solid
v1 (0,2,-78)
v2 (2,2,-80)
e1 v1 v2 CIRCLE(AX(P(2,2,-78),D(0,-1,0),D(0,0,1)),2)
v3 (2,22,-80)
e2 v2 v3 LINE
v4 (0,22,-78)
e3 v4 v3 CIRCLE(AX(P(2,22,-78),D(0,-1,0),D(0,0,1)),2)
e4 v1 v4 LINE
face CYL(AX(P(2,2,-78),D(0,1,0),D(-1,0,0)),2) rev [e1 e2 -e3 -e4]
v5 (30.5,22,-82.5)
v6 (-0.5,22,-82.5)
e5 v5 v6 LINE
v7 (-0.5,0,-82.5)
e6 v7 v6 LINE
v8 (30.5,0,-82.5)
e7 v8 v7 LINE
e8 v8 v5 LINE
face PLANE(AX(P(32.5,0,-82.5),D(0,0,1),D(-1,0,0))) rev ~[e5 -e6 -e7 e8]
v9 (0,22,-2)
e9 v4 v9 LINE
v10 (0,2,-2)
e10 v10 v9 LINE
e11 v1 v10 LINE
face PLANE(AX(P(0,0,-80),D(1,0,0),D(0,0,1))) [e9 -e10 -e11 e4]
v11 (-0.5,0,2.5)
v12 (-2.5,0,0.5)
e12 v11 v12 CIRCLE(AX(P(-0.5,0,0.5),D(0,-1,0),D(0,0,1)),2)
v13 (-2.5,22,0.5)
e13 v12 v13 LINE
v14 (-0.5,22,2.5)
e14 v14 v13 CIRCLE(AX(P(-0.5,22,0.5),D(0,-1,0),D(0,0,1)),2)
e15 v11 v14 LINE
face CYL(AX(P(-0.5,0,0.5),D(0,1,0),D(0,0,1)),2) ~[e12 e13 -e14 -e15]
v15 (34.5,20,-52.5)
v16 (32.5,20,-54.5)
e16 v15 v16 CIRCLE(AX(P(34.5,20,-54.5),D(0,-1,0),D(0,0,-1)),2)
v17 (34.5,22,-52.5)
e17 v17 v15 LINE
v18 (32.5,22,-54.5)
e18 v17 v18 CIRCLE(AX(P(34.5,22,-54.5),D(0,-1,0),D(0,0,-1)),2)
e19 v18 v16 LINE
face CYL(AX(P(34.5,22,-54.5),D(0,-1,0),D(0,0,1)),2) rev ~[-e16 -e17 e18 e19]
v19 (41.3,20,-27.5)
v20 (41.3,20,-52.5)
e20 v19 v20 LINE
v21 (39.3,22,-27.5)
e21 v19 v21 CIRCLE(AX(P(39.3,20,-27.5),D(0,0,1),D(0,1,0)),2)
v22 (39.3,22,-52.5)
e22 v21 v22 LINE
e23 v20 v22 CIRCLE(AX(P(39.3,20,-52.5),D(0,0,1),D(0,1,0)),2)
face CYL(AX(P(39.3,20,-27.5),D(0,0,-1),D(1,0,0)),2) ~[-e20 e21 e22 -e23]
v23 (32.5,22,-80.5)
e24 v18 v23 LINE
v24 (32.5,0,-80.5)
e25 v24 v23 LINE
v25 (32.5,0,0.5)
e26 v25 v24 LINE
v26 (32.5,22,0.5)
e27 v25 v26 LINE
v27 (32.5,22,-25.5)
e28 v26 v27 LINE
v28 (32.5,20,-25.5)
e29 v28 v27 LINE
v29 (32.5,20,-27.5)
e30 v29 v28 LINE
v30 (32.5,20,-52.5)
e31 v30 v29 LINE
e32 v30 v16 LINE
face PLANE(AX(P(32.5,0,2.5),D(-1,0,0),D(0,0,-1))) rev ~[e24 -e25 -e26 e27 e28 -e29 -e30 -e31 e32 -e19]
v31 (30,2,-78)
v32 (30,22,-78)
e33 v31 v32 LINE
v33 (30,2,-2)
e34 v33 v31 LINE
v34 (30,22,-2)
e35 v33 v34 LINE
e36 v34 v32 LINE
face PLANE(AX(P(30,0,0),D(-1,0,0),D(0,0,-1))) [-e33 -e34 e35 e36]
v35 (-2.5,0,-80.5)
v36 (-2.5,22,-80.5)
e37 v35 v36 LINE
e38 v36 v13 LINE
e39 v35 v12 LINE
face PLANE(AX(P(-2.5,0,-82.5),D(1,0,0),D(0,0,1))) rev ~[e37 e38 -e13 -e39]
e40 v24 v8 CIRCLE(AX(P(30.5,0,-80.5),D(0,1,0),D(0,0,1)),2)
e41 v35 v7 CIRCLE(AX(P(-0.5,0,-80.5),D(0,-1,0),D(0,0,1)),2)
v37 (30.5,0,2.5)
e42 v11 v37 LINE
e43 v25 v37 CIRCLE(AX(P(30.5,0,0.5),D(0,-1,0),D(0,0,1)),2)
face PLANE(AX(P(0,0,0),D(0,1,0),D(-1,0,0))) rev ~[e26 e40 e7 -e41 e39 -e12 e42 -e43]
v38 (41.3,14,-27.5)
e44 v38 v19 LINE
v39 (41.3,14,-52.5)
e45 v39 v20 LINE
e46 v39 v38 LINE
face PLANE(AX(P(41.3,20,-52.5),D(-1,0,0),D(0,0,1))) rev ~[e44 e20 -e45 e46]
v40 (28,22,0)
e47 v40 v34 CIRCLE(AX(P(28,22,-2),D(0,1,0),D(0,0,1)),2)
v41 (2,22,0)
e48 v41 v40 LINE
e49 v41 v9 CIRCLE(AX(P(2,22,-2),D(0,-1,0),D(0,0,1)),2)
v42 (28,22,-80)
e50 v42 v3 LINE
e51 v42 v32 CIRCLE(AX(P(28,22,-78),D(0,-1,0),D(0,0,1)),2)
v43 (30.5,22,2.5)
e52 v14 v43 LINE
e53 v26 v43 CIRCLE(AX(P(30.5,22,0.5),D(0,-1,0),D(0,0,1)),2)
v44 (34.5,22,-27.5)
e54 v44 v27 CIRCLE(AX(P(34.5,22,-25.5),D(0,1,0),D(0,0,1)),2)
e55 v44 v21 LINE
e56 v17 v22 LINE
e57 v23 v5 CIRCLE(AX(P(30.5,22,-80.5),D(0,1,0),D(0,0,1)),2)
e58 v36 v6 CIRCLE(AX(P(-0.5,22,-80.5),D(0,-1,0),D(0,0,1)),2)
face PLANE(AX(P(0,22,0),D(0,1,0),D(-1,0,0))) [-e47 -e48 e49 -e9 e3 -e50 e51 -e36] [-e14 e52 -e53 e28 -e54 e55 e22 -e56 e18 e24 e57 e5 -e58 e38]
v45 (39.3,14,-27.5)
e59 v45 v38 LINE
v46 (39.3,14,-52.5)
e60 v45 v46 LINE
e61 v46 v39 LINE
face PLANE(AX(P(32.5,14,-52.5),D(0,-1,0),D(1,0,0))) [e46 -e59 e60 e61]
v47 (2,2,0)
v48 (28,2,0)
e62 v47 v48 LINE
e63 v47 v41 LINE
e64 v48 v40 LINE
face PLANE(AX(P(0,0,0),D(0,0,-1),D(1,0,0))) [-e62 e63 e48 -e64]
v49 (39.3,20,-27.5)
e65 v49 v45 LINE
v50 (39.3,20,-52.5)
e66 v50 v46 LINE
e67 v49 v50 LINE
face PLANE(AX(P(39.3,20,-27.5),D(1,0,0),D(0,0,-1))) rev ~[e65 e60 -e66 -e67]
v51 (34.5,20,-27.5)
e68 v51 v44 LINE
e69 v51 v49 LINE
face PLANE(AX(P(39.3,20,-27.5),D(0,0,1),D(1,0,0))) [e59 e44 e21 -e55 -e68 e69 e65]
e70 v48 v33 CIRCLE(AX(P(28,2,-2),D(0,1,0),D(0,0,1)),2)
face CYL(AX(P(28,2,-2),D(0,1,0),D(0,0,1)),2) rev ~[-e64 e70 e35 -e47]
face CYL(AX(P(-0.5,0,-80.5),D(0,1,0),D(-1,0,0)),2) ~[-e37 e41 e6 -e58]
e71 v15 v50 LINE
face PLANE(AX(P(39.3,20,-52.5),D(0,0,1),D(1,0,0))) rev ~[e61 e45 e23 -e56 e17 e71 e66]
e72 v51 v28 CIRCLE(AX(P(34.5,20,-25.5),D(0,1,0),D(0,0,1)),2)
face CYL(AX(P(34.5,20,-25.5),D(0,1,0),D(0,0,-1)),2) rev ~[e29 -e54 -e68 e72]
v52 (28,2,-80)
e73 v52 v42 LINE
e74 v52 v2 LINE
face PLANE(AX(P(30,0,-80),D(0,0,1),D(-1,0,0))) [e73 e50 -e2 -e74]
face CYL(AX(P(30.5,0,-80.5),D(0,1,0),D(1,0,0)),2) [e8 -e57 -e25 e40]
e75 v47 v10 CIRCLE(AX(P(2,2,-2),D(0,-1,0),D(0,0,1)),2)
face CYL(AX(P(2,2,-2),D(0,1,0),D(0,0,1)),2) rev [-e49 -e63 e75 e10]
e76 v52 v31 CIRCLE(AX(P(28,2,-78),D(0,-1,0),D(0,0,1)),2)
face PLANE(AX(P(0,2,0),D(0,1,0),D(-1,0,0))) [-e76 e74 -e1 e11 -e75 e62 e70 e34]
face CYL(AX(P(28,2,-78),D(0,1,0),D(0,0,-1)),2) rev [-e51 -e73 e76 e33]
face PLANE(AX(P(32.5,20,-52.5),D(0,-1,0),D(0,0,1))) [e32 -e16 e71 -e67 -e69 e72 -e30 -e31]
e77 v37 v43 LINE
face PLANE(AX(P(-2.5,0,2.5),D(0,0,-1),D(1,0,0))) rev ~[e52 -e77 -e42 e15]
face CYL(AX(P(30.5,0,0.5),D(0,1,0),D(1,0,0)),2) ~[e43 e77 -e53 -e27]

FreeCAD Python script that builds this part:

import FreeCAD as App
import Part
import Sketcher


def edges_at(feature, points):
    """Names of the edges that pass closest to the given points."""
    edges = feature.Shape.Edges
    near = lambda p: min(range(len(edges)), key=lambda i: edges[i].distToShape(Part.Vertex(*p))[0])
    return sorted({f"Edge{near(p) + 1}" for p in points})

doc = App.newDocument("Part")
body = doc.addObject("PartDesign::Body", "Body")

sketch1 = body.newObject("Sketcher::SketchObject", "Sketch")
sketch1.AttachmentSupport = (doc.getObject("XZ_Plane"), [""])
sketch1.MapMode = "FlatFace"
sketch1.addGeometry(Part.LineSegment(App.Vector(0, -80, 0), App.Vector(0, 0, 0)), False)
sketch1.addGeometry(Part.LineSegment(App.Vector(0, 0, 0), App.Vector(30, 0, 0)), False)
sketch1.addGeometry(Part.LineSegment(App.Vector(30, 0, 0), App.Vector(30, -80, 0)), False)
sketch1.addGeometry(Part.LineSegment(App.Vector(30, -80, 0), App.Vector(0, -80, 0)), False)
sketch1.addConstraint(Sketcher.Constraint("Coincident", 0, 2, 1, 1))
sketch1.addConstraint(Sketcher.Constraint("Coincident", 1, 2, 2, 1))
sketch1.addConstraint(Sketcher.Constraint("Coincident", 2, 2, 3, 1))
sketch1.addConstraint(Sketcher.Constraint("Coincident", 3, 2, 0, 1))
sketch1.addConstraint(Sketcher.Constraint("Vertical", 0))
sketch1.addConstraint(Sketcher.Constraint("Horizontal", 1))
sketch1.addConstraint(Sketcher.Constraint("Vertical", 2))
sketch1.addConstraint(Sketcher.Constraint("Horizontal", 3))
sketch1.addConstraint(Sketcher.Constraint("Coincident", 0, 2, -1, 1))
sketch1.addConstraint(Sketcher.Constraint("DistanceX", 1, 1, 1, 2, 30.0))
sketch1.addConstraint(Sketcher.Constraint("DistanceY", 0, 1, 0, 2, 80.0))
pad1 = body.newObject("PartDesign::Pad", "Pad")
pad1.Profile = sketch1
pad1.Length = 2
pad1.Reversed = True

sketch2 = body.newObject("Sketcher::SketchObject", "Sketch001")
sketch2.AttachmentSupport = (doc.getObject("XZ_Plane"), [""])
sketch2.MapMode = "FlatFace"
sketch2.addGeometry(Part.LineSegment(App.Vector(-2.5, -82.5, 0), App.Vector(-2.5, 2.5, 0)), False)
sketch2.addGeometry(Part.LineSegment(App.Vector(-2.5, 2.5, 0), App.Vector(32.5, 2.5, 0)), False)
sketch2.addGeometry(Part.LineSegment(App.Vector(32.5, 2.5, 0), App.Vector(32.5, -82.5, 0)), False)
sketch2.addGeometry(Part.LineSegment(App.Vector(32.5, -82.5, 0), App.Vector(-2.5, -82.5, 0)), False)
sketch2.addGeometry(Part.LineSegment(App.Vector(30, 0, 0), App.Vector(0, 0, 0)), False)
sketch2.addGeometry(Part.LineSegment(App.Vector(0, 0, 0), App.Vector(0, -80, 0)), False)
sketch2.addGeometry(Part.LineSegment(App.Vector(0, -80, 0), App.Vector(30, -80, 0)), False)
sketch2.addGeometry(Part.LineSegment(App.Vector(30, -80, 0), App.Vector(30, 0, 0)), False)
sketch2.addConstraint(Sketcher.Constraint("Coincident", 0, 2, 1, 1))
sketch2.addConstraint(Sketcher.Constraint("Coincident", 1, 2, 2, 1))
sketch2.addConstraint(Sketcher.Constraint("Coincident", 2, 2, 3, 1))
sketch2.addConstraint(Sketcher.Constraint("Coincident", 3, 2, 0, 1))
sketch2.addConstraint(Sketcher.Constraint("Coincident", 4, 2, 5, 1))
sketch2.addConstraint(Sketcher.Constraint("Coincident", 5, 2, 6, 1))
sketch2.addConstraint(Sketcher.Constraint("Coincident", 6, 2, 7, 1))
sketch2.addConstraint(Sketcher.Constraint("Coincident", 7, 2, 4, 1))
sketch2.addConstraint(Sketcher.Constraint("Vertical", 0))
sketch2.addConstraint(Sketcher.Constraint("Horizontal", 1))
sketch2.addConstraint(Sketcher.Constraint("Vertical", 2))
sketch2.addConstraint(Sketcher.Constraint("Horizontal", 3))
sketch2.addConstraint(Sketcher.Constraint("Horizontal", 4))
sketch2.addConstraint(Sketcher.Constraint("Vertical", 5))
sketch2.addConstraint(Sketcher.Constraint("Horizontal", 6))
sketch2.addConstraint(Sketcher.Constraint("Vertical", 7))
sketch2.addConstraint(Sketcher.Constraint("Coincident", 4, 2, -1, 1))
sketch2.addConstraint(Sketcher.Constraint("DistanceX", 4, 2, 4, 1, 30.0))
sketch2.addConstraint(Sketcher.Constraint("DistanceY", 5, 2, 5, 1, 80.0))
sketch2.addConstraint(Sketcher.Constraint("DistanceX", 0, 2, -1, 1, 2.5))
sketch2.addConstraint(Sketcher.Constraint("DistanceY", -1, 1, 0, 2, 2.5))
sketch2.addConstraint(Sketcher.Constraint("DistanceY", 3, 2, 5, 2, 2.5))
sketch2.addConstraint(Sketcher.Constraint("DistanceX", 6, 2, 2, 2, 2.5))
pad2 = body.newObject("PartDesign::Pad", "Pad001")
pad2.Profile = sketch2
pad2.Length = 22
pad2.Reversed = True

sketch3 = body.newObject("Sketcher::SketchObject", "Sketch002")
sketch3.AttachmentSupport = (doc.getObject("YZ_Plane"), [""])
sketch3.MapMode = "FlatFace"
sketch3.AttachmentOffset = App.Placement(App.Vector(0, 0, 32.5), App.Rotation())
sketch3.addGeometry(Part.LineSegment(App.Vector(22, -52.5, 0), App.Vector(22, -27.5, 0)), False)
sketch3.addGeometry(Part.LineSegment(App.Vector(22, -27.5, 0), App.Vector(20, -27.5, 0)), False)
sketch3.addGeometry(Part.LineSegment(App.Vector(20, -27.5, 0), App.Vector(20, -52.5, 0)), False)
sketch3.addGeometry(Part.LineSegment(App.Vector(20, -52.5, 0), App.Vector(22, -52.5, 0)), False)
sketch3.addConstraint(Sketcher.Constraint("Coincident", 0, 2, 1, 1))
sketch3.addConstraint(Sketcher.Constraint("Coincident", 1, 2, 2, 1))
sketch3.addConstraint(Sketcher.Constraint("Coincident", 2, 2, 3, 1))
sketch3.addConstraint(Sketcher.Constraint("Coincident", 3, 2, 0, 1))
sketch3.addConstraint(Sketcher.Constraint("Vertical", 0))
sketch3.addConstraint(Sketcher.Constraint("Horizontal", 1))
sketch3.addConstraint(Sketcher.Constraint("Vertical", 2))
sketch3.addConstraint(Sketcher.Constraint("Horizontal", 3))
sketch3.addConstraint(Sketcher.Constraint("DistanceX", 1, 2, 1, 1, 2.0))
sketch3.addConstraint(Sketcher.Constraint("DistanceY", 0, 1, 0, 2, 25.0))
sketch3.addConstraint(Sketcher.Constraint("DistanceX", -1, 1, 0, 2, 22.0))
sketch3.addConstraint(Sketcher.Constraint("DistanceY", 0, 2, -1, 1, 27.5))
pad3 = body.newObject("PartDesign::Pad", "Pad002")
pad3.Profile = sketch3
pad3.Length = 8.8

sketch4 = body.newObject("Sketcher::SketchObject", "Sketch003")
sketch4.AttachmentSupport = (doc.getObject("XZ_Plane"), [""])
sketch4.MapMode = "FlatFace"
sketch4.AttachmentOffset = App.Placement(App.Vector(0, 0, -20), App.Rotation())
sketch4.addGeometry(Part.LineSegment(App.Vector(41.3, -27.5, 0), App.Vector(39.3, -27.5, 0)), False)
sketch4.addGeometry(Part.LineSegment(App.Vector(39.3, -27.5, 0), App.Vector(39.3, -52.5, 0)), False)
sketch4.addGeometry(Part.LineSegment(App.Vector(39.3, -52.5, 0), App.Vector(41.3, -52.5, 0)), False)
sketch4.addGeometry(Part.LineSegment(App.Vector(41.3, -52.5, 0), App.Vector(41.3, -27.5, 0)), False)
sketch4.addConstraint(Sketcher.Constraint("Coincident", 0, 2, 1, 1))
sketch4.addConstraint(Sketcher.Constraint("Coincident", 1, 2, 2, 1))
sketch4.addConstraint(Sketcher.Constraint("Coincident", 2, 2, 3, 1))
sketch4.addConstraint(Sketcher.Constraint("Coincident", 3, 2, 0, 1))
sketch4.addConstraint(Sketcher.Constraint("Horizontal", 0))
sketch4.addConstraint(Sketcher.Constraint("Vertical", 1))
sketch4.addConstraint(Sketcher.Constraint("Horizontal", 2))
sketch4.addConstraint(Sketcher.Constraint("Vertical", 3))
sketch4.addConstraint(Sketcher.Constraint("DistanceX", 0, 2, 0, 1, 2.0))
sketch4.addConstraint(Sketcher.Constraint("DistanceY", 1, 2, 1, 1, 25.0))
sketch4.addConstraint(Sketcher.Constraint("DistanceX", -1, 1, 0, 2, 39.3))
sketch4.addConstraint(Sketcher.Constraint("DistanceY", 0, 2, -1, 1, 27.5))
pad4 = body.newObject("PartDesign::Pad", "Pad003")
pad4.Profile = sketch4
pad4.Length = 6
doc.recompute()

fillet = body.newObject("PartDesign::Fillet", "Fillet")
fillet.Base = (pad4, edges_at(pad4, [(41.3, 22, -40), (32.5, 21, -52.5), (32.5, 21, -27.5)]))
fillet.Radius = 2
doc.recompute()

fillet2 = body.newObject("PartDesign::Fillet", "Fillet001")
fillet2.Base = (fillet, edges_at(fillet, [
    (-2.5, 11, 2.5),
    (32.5, 11, 2.5),
    (32.5, 11, -82.5),
    (-2.5, 11, -82.5),
]))
fillet2.Radius = 2
doc.recompute()

fillet3 = body.newObject("PartDesign::Fillet", "Fillet002")
fillet3.Base = (fillet2, edges_at(fillet2, [
    (30, 12, -80),
    (30, 12, 0),
    (0, 12, -80),
    (0, 12, 0),
]))
fillet3.Radius = 2

doc.recompute()
